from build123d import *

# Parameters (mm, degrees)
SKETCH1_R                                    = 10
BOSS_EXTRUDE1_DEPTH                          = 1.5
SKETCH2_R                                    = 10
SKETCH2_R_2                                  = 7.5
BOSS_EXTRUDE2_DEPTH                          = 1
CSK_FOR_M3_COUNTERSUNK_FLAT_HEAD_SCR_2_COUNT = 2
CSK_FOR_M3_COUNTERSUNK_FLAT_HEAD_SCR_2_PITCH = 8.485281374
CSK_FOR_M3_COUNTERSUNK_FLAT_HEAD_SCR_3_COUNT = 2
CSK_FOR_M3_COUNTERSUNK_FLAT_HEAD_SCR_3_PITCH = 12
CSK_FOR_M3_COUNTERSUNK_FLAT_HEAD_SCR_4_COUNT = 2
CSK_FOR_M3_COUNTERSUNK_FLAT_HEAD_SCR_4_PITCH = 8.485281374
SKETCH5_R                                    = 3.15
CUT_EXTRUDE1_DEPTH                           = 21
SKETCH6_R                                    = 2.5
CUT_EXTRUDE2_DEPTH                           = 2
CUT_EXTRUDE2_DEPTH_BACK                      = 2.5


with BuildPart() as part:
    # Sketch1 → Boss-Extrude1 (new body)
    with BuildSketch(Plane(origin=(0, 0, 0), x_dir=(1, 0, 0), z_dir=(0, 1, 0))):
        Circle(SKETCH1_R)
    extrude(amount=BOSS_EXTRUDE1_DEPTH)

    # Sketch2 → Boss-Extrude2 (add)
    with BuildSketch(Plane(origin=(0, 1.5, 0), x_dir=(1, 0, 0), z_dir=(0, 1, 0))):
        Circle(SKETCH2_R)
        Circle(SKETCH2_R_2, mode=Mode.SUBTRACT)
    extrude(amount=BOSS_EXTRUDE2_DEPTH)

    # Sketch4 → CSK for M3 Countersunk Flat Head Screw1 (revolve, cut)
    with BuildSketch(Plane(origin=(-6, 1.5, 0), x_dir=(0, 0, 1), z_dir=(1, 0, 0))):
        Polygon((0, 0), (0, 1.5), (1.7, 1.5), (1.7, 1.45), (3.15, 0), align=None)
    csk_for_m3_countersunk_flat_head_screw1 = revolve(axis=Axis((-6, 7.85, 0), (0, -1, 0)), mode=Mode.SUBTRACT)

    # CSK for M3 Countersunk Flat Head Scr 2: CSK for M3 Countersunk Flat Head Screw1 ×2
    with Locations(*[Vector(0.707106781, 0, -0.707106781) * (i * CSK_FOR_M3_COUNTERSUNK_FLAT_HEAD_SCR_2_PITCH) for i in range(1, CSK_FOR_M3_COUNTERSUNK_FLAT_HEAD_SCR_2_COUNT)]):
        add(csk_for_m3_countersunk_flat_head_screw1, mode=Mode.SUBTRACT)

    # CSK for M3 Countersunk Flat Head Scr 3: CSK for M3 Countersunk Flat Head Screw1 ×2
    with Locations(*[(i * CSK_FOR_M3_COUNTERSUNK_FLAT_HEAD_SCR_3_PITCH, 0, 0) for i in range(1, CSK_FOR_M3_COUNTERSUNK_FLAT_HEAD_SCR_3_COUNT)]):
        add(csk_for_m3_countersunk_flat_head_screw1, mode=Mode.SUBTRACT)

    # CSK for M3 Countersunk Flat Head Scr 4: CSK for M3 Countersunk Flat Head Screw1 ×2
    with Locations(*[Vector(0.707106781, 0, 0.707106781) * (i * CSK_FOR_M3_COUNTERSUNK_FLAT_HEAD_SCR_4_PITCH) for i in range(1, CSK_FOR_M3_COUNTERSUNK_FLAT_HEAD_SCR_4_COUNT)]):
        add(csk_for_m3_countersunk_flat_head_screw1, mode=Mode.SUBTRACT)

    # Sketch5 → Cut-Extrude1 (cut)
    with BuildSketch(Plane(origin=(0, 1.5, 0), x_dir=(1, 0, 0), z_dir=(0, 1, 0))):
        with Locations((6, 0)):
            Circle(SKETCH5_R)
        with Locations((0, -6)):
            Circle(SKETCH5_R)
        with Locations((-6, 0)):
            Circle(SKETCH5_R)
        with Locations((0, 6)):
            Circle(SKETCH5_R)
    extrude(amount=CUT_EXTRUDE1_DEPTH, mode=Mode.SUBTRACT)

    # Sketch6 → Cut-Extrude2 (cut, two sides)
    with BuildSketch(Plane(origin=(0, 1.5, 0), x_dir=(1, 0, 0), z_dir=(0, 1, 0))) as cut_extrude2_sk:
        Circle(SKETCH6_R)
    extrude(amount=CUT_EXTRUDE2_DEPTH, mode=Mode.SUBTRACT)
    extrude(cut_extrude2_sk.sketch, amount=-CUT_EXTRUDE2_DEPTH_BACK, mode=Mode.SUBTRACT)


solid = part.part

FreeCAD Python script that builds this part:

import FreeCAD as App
import Part
import Sketcher

V = App.Vector
Q = App.Units.Quantity


def add_polygon(sketch, points):
    """Adds a closed chain of lines whose ends are joined by coincident constraints."""
    first, n = sketch.GeometryCount, len(points)
    for a, b in zip(points, points[1:] + points[:1]):
        sketch.addGeometry(Part.LineSegment(App.Vector(*a, 0), App.Vector(*b, 0)), False)
    for i in range(n):
        sketch.addConstraint(Sketcher.Constraint("Coincident", first + i, 2, first + (i + 1) % n, 1))

doc = App.newDocument("Part")
body = doc.addObject("PartDesign::Body", "Body")

# Sketch on XZ plane
sketch1 = doc.addObject("Sketcher::SketchObject", "Sketch")
body.addObject(sketch1)
sketch1.AttachmentSupport = (doc.XZ_Plane, [""])
sketch1.MapMode = "FlatFace"
sketch1.addGeometry(Part.Circle(V(0, 0, 0), V(0, 0, 1), 10), False)
sketch1.addConstraint(Sketcher.Constraint("Coincident", 0, 3, -1, 1))
sketch1.addConstraint(Sketcher.Constraint("Diameter", 0, 20.0))
pad1 = doc.addObject("PartDesign::Pad", "Pad")
body.addObject(pad1)
pad1.Profile = sketch1
pad1.Length = 1.5
pad1.Reversed = True

# Sketch on XZ plane
sketch2 = doc.addObject("Sketcher::SketchObject", "Sketch001")
body.addObject(sketch2)
sketch2.AttachmentSupport = (doc.XZ_Plane, [""])
sketch2.MapMode = "FlatFace"
sketch2.AttachmentOffset = App.Placement(V(0, 0, -1.5), App.Rotation())
sketch2.addGeometry(Part.Circle(V(0, 0, 0), V(0, 0, 1), 10), False)
sketch2.addGeometry(Part.Circle(V(0, 0, 0), V(0, 0, 1), 8), False)
sketch2.addConstraint(Sketcher.Constraint("Coincident", 0, 3, -1, 1))
sketch2.addConstraint(Sketcher.Constraint("Coincident", 1, 3, -1, 1))
sketch2.addConstraint(Sketcher.Constraint("Diameter", 0, 20.0))
sketch2.addConstraint(Sketcher.Constraint("Diameter", 1, 15.0))
pad2 = doc.addObject("PartDesign::Pad", "Pad001")
body.addObject(pad2)
pad2.Profile = sketch2
pad2.Length = 1
pad2.Reversed = True

# Sketch on YZ plane
sketch3 = doc.addObject("Sketcher::SketchObject", "Sketch002")
body.addObject(sketch3)
sketch3.AttachmentSupport = (doc.YZ_Plane, [""])
sketch3.MapMode = "FlatFace"
sketch3.AttachmentOffset = App.Placement(V(0, 0, -6), App.Rotation())
add_polygon(sketch3, [(0, 0), (1.5, 0), (1.5, 3.15), (0.05, 1.7), (0, 1.7)])  # lines 0-4
sketch3.addConstraint(Sketcher.Constraint("Horizontal", 0))
sketch3.addConstraint(Sketcher.Constraint("Vertical", 1))
sketch3.addConstraint(Sketcher.Constraint("Horizontal", 3))
sketch3.addConstraint(Sketcher.Constraint("Vertical", 4))
sketch3.addConstraint(Sketcher.Constraint("Coincident", 4, 2, -1, 1))
sketch3.addConstraint(Sketcher.Constraint("Angle", 2, Q("-135 deg")))
sketch3.addConstraint(Sketcher.Constraint("DistanceX", 0, 1, 0, 2, 1.5))
sketch3.addConstraint(Sketcher.Constraint("DistanceY", 4, 2, 4, 1, 1.7))
sketch3.addConstraint(Sketcher.Constraint("DistanceX", 3, 2, 3, 1, 0.05))
groove = doc.addObject("PartDesign::Groove", "Groove")
body.addObject(groove)
groove.Profile = sketch3
groove.ReferenceAxis = (sketch3, ["H_Axis"])
groove.Angle = 360
doc.recompute()

datumline = doc.addObject("PartDesign::Line", "DatumLine")
body.addObject(datumline)
datumline.Placement = App.Placement(V(0, 0, 0), App.Rotation(V(0, 0, 1), V(0.707106781, 0, -0.707106781)))
linearpattern = doc.addObject("PartDesign::LinearPattern", "LinearPattern")
body.addObject(linearpattern)
linearpattern.Originals = [groove]
linearpattern.Direction = (datumline, [""])
linearpattern.Mode = "offset"
linearpattern.Offset = 8.485281
linearpattern.Occurrences = 2
body.Tip = linearpattern
doc.recompute()

linearpattern2 = doc.addObject("PartDesign::LinearPattern", "LinearPattern001")
body.addObject(linearpattern2)
linearpattern2.Originals = [groove]
linearpattern2.Direction = (doc.X_Axis, [""])
linearpattern2.Mode = "offset"
linearpattern2.Offset = 12
linearpattern2.Occurrences = 2
body.Tip = linearpattern2
doc.recompute()

datumline2 = doc.addObject("PartDesign::Line", "DatumLine001")
body.addObject(datumline2)
datumline2.Placement = App.Placement(V(0, 0, 0), App.Rotation(V(0, 0, 1), V(0.707106781, 0, 0.707106781)))
linearpattern3 = doc.addObject("PartDesign::LinearPattern", "LinearPattern002")
body.addObject(linearpattern3)
linearpattern3.Originals = [groove]
linearpattern3.Direction = (datumline2, [""])
linearpattern3.Mode = "offset"
linearpattern3.Offset = 8.485281
linearpattern3.Occurrences = 2
body.Tip = linearpattern3

# Sketch on XZ plane
sketch4 = doc.addObject("Sketcher::SketchObject", "Sketch003")
body.addObject(sketch4)
sketch4.AttachmentSupport = (doc.XZ_Plane, [""])
sketch4.MapMode = "FlatFace"
sketch4.AttachmentOffset = App.Placement(V(0, 0, -1.5), App.Rotation())
sketch4.addGeometry(Part.Circle(V(6, 0, 0), V(0, 0, 1), 3.1), False)
sketch4.addGeometry(Part.Circle(V(0, 6, 0), V(0, 0, 1), 3.1), False)
sketch4.addGeometry(Part.Circle(V(-6, 0, 0), V(0, 0, 1), 3.1), False)
sketch4.addGeometry(Part.Circle(V(0, -6, 0), V(0, 0, 1), 3.1), False)
sketch4.addConstraint(Sketcher.Constraint("Equal", 0, 1))
sketch4.addConstraint(Sketcher.Constraint("Equal", 1, 2))
sketch4.addConstraint(Sketcher.Constraint("Equal", 2, 3))
sketch4.addConstraint(Sketcher.Constraint("Symmetric", 0, 3, 2, 3, -1, 1))
sketch4.addConstraint(Sketcher.Constraint("Symmetric", 1, 3, 3, 3, -1, 1))
sketch4.addConstraint(Sketcher.Constraint("PointOnObject", 0, 3, -1))
sketch4.addConstraint(Sketcher.Constraint("PointOnObject", 1, 3, -2))
sketch4.addConstraint(Sketcher.Constraint("Diameter", 0, 6.3))
sketch4.addConstraint(Sketcher.Constraint("DistanceX", -1, 1, 0, 3, 6.0))
sketch4.addConstraint(Sketcher.Constraint("DistanceY", -1, 1, 1, 3, 6.0))
pocket1 = doc.addObject("PartDesign::Pocket", "Pocket")
body.addObject(pocket1)
pocket1.Profile = sketch4
pocket1.Length = 21

# Sketch on XZ plane
sketch5 = doc.addObject("Sketcher::SketchObject", "Sketch004")
body.addObject(sketch5)
sketch5.AttachmentSupport = (doc.XZ_Plane, [""])
sketch5.MapMode = "FlatFace"
sketch5.AttachmentOffset = App.Placement(V(0, 0, -1.5), App.Rotation())
sketch5.addGeometry(Part.Circle(V(0, 0, 0), V(0, 0, 1), 2.5), False)
sketch5.addConstraint(Sketcher.Constraint("Coincident", 0, 3, -1, 1))
sketch5.addConstraint(Sketcher.Constraint("Diameter", 0, 5.0))
pocket2 = doc.addObject("PartDesign::Pocket", "Pocket001")
body.addObject(pocket2)
pocket2.Profile = sketch5
pocket2.Type = "ThroughAll"
pocket2.Midplane = True

doc.recompute()
